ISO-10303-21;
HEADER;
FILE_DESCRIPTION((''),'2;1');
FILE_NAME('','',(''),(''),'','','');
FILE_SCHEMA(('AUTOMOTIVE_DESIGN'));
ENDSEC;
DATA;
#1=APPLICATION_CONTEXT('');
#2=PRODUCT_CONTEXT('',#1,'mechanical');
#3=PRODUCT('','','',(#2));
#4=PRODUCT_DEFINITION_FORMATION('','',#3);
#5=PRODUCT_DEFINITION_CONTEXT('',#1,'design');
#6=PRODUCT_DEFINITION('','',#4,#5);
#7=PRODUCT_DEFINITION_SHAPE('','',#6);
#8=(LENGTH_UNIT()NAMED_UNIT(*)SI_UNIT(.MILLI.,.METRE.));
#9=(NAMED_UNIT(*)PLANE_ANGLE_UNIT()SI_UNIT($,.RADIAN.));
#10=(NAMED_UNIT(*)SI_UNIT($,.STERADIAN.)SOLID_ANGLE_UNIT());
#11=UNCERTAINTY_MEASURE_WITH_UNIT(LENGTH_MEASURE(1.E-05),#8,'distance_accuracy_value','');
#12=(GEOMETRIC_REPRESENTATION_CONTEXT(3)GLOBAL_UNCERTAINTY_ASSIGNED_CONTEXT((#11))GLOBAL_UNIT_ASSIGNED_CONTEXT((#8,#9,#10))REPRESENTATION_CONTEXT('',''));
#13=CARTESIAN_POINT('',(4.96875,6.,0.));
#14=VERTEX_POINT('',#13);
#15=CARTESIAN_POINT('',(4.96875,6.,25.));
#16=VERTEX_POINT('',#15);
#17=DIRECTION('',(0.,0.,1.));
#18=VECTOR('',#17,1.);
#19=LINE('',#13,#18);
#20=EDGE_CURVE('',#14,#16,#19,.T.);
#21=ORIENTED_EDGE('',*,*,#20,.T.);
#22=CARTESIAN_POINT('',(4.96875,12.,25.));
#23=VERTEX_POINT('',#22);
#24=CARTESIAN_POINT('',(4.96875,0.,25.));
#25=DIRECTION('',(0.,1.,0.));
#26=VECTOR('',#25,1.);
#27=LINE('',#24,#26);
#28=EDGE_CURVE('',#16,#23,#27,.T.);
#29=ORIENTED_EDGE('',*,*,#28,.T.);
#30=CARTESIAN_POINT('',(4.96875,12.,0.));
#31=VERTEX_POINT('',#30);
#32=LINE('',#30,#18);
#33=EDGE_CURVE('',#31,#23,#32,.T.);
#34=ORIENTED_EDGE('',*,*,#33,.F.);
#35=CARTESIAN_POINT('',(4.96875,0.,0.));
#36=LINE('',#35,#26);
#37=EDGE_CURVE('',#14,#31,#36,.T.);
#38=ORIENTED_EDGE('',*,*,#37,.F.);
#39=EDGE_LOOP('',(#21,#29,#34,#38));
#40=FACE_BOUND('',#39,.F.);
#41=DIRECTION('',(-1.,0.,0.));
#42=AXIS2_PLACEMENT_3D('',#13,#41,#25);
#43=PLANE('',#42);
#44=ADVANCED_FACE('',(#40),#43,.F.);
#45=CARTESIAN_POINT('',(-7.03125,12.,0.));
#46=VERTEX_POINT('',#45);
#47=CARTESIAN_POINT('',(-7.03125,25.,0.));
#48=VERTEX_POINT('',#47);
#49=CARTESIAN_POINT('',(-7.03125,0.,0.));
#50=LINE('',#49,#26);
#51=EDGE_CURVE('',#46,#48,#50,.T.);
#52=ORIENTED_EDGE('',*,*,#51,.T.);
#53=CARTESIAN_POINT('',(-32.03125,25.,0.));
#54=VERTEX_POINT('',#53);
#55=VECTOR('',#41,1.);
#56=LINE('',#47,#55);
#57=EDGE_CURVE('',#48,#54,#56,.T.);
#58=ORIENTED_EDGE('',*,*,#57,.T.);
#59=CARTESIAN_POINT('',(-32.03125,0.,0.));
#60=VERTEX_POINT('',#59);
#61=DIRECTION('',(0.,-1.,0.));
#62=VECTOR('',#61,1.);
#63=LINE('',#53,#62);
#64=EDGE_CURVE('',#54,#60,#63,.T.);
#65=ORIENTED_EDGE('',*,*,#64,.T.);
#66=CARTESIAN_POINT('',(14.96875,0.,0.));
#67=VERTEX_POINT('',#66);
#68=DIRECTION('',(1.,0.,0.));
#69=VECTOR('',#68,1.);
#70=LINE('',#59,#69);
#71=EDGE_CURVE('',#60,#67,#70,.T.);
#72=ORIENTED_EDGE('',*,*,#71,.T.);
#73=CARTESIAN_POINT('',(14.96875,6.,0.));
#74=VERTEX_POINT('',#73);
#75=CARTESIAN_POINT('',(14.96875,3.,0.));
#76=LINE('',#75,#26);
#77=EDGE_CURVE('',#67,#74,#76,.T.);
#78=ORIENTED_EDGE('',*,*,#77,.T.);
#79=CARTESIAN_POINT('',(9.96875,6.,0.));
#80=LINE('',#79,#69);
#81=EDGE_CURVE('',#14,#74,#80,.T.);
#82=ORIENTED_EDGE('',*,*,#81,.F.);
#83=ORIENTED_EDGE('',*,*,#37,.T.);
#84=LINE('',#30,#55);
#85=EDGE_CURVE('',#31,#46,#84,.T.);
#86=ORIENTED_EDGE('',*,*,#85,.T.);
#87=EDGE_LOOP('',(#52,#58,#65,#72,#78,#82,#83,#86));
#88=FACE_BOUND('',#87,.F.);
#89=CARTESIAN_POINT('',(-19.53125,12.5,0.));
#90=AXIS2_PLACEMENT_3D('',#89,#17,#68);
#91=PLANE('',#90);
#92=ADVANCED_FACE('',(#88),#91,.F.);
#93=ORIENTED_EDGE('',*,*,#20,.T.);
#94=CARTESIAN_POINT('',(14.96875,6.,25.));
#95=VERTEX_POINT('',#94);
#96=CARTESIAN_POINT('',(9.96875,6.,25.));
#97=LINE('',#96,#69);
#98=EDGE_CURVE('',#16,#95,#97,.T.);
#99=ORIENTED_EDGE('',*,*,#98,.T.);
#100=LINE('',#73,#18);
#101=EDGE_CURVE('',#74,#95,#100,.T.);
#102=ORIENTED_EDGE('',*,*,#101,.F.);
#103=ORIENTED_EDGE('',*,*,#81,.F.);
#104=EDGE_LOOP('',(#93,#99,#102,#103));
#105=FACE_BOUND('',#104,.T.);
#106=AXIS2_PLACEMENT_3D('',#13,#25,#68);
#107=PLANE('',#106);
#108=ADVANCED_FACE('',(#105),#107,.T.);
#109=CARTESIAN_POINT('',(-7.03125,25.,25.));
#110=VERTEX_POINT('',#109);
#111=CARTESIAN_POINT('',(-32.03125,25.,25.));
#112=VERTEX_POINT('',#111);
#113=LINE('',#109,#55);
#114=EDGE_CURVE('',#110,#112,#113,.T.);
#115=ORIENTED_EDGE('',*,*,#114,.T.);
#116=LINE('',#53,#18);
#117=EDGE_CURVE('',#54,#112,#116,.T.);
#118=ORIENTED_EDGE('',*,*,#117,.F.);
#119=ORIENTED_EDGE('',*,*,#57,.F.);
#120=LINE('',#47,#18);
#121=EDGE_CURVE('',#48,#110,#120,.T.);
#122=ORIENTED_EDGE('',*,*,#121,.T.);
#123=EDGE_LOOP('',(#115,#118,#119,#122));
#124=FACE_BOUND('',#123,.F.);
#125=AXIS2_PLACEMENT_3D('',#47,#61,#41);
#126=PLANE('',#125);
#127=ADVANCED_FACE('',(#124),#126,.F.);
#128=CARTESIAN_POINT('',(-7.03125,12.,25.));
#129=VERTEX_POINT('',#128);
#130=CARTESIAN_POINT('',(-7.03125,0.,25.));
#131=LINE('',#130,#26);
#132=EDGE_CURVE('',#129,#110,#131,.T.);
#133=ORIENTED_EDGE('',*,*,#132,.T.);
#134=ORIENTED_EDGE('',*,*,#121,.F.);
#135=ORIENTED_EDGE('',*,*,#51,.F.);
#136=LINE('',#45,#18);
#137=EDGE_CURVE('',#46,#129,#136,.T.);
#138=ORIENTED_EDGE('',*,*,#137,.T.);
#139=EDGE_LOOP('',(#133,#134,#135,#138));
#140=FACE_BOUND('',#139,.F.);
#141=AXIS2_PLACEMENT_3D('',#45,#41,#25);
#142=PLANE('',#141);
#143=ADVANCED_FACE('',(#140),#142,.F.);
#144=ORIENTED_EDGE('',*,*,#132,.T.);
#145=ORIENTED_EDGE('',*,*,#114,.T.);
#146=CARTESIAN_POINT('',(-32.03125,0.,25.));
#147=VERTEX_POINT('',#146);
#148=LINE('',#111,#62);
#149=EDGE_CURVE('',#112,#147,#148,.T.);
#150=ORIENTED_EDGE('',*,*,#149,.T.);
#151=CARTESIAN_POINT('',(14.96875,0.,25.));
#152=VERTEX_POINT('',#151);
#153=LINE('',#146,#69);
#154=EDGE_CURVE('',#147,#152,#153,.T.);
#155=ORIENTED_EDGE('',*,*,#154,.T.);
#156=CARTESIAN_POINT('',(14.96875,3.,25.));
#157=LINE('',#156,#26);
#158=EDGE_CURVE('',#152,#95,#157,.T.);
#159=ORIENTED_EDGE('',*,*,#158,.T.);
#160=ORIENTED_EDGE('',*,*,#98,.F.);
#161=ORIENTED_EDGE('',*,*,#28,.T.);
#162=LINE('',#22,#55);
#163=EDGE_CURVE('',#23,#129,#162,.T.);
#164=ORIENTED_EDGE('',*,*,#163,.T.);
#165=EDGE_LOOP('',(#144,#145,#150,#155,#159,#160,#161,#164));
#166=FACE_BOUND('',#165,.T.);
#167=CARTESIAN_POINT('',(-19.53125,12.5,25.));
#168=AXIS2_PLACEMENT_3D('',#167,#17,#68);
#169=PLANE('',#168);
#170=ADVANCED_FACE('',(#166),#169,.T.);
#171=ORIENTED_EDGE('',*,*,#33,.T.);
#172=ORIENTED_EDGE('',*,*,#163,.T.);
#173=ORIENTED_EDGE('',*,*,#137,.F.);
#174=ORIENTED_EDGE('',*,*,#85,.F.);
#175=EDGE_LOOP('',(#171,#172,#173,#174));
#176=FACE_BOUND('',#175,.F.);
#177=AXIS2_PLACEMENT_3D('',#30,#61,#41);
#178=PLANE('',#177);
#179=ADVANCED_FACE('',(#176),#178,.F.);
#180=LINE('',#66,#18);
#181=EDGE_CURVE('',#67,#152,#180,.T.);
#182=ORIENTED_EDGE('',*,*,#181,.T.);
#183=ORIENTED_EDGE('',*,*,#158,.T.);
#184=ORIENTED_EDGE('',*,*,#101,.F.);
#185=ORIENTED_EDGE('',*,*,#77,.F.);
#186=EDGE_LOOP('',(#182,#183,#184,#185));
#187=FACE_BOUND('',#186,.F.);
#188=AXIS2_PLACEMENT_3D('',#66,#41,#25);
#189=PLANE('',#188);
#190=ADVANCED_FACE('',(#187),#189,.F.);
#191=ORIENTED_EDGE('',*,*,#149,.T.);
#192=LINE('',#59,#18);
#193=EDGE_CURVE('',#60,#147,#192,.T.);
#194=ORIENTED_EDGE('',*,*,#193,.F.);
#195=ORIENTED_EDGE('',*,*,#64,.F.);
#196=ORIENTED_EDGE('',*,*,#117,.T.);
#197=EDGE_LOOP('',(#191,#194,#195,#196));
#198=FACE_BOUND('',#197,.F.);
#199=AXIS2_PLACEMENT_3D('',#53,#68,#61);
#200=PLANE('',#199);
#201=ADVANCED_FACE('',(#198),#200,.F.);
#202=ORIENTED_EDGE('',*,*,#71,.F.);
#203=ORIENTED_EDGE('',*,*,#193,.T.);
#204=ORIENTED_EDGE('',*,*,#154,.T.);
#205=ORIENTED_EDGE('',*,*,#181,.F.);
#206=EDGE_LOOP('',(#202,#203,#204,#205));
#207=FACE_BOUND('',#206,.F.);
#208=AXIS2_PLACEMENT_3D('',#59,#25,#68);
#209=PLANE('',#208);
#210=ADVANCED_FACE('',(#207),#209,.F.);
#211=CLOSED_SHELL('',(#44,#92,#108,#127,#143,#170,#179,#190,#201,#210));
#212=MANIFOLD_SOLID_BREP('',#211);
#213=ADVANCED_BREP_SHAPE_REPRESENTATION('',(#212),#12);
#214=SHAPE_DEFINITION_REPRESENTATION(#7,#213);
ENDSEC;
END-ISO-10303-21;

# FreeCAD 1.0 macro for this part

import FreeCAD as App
import Part
import Sketcher
from FreeCAD import Vector
Q = App.Units.Quantity


def add_polygon(sketch, points):
    """Adds a closed chain of lines whose ends are joined by coincident constraints."""
    first, n = sketch.GeometryCount, len(points)
    for a, b in zip(points, points[1:] + points[:1]):
        sketch.addGeometry(Part.LineSegment(App.Vector(*a, 0), App.Vector(*b, 0)), False)
    for i in range(n):
        sketch.addConstraint(Sketcher.Constraint("Coincident", first + i, 2, first + (i + 1) % n, 1))

doc = App.newDocument("Part")
body = doc.addObject("PartDesign::Body", "Body")

# Sketch on XY plane
sketch1 = body.newObject("Sketcher::SketchObject", "Sketch")
sketch1.AttachmentSupport = (doc.getObject("XY_Plane"), [""])
sketch1.MapMode = "FlatFace"
add_polygon(sketch1, [(-7, 25), (-32, 25), (-32, 0), (15, 0), (15, 6), (5, 6), (5, 12), (-7, 12)])  # lines 0-7
sketch1.addConstraint(Sketcher.Constraint("Horizontal", 0))
sketch1.addConstraint(Sketcher.Constraint("Vertical", 1))
sketch1.addConstraint(Sketcher.Constraint("Horizontal", 2))
sketch1.addConstraint(Sketcher.Constraint("Vertical", 3))
sketch1.addConstraint(Sketcher.Constraint("Horizontal", 4))
sketch1.addConstraint(Sketcher.Constraint("Vertical", 5))
sketch1.addConstraint(Sketcher.Constraint("Horizontal", 6))
sketch1.addConstraint(Sketcher.Constraint("Vertical", 7))
sketch1.addConstraint(Sketcher.Constraint("PointOnObject", 1, 2, -1))
sketch1.addConstraint(Sketcher.Constraint("Equal", 0, 1))
sketch1.addConstraint(Sketcher.Constraint("Equal", 3, 5))
sketch1.addConstraint(Sketcher.Constraint("DistanceX", 0, 2, 0, 1, Q("25 mm")))
sketch1.addConstraint(Sketcher.Constraint("DistanceX", 2, 1, 2, 2, Q("47 mm")))
sketch1.addConstraint(Sketcher.Constraint("DistanceX", 4, 2, 4, 1, Q("10 mm")))
sketch1.addConstraint(Sketcher.Constraint("DistanceY", 3, 1, 3, 2, Q("6 mm")))
sketch1.addConstraint(Sketcher.Constraint("DistanceX", 0, 2, -1, 1, Q("32.03125 mm")))
pad1 = body.newObject("PartDesign::Pad", "Pad")
pad1.Profile = sketch1
pad1.Length = 25

doc.recompute()
